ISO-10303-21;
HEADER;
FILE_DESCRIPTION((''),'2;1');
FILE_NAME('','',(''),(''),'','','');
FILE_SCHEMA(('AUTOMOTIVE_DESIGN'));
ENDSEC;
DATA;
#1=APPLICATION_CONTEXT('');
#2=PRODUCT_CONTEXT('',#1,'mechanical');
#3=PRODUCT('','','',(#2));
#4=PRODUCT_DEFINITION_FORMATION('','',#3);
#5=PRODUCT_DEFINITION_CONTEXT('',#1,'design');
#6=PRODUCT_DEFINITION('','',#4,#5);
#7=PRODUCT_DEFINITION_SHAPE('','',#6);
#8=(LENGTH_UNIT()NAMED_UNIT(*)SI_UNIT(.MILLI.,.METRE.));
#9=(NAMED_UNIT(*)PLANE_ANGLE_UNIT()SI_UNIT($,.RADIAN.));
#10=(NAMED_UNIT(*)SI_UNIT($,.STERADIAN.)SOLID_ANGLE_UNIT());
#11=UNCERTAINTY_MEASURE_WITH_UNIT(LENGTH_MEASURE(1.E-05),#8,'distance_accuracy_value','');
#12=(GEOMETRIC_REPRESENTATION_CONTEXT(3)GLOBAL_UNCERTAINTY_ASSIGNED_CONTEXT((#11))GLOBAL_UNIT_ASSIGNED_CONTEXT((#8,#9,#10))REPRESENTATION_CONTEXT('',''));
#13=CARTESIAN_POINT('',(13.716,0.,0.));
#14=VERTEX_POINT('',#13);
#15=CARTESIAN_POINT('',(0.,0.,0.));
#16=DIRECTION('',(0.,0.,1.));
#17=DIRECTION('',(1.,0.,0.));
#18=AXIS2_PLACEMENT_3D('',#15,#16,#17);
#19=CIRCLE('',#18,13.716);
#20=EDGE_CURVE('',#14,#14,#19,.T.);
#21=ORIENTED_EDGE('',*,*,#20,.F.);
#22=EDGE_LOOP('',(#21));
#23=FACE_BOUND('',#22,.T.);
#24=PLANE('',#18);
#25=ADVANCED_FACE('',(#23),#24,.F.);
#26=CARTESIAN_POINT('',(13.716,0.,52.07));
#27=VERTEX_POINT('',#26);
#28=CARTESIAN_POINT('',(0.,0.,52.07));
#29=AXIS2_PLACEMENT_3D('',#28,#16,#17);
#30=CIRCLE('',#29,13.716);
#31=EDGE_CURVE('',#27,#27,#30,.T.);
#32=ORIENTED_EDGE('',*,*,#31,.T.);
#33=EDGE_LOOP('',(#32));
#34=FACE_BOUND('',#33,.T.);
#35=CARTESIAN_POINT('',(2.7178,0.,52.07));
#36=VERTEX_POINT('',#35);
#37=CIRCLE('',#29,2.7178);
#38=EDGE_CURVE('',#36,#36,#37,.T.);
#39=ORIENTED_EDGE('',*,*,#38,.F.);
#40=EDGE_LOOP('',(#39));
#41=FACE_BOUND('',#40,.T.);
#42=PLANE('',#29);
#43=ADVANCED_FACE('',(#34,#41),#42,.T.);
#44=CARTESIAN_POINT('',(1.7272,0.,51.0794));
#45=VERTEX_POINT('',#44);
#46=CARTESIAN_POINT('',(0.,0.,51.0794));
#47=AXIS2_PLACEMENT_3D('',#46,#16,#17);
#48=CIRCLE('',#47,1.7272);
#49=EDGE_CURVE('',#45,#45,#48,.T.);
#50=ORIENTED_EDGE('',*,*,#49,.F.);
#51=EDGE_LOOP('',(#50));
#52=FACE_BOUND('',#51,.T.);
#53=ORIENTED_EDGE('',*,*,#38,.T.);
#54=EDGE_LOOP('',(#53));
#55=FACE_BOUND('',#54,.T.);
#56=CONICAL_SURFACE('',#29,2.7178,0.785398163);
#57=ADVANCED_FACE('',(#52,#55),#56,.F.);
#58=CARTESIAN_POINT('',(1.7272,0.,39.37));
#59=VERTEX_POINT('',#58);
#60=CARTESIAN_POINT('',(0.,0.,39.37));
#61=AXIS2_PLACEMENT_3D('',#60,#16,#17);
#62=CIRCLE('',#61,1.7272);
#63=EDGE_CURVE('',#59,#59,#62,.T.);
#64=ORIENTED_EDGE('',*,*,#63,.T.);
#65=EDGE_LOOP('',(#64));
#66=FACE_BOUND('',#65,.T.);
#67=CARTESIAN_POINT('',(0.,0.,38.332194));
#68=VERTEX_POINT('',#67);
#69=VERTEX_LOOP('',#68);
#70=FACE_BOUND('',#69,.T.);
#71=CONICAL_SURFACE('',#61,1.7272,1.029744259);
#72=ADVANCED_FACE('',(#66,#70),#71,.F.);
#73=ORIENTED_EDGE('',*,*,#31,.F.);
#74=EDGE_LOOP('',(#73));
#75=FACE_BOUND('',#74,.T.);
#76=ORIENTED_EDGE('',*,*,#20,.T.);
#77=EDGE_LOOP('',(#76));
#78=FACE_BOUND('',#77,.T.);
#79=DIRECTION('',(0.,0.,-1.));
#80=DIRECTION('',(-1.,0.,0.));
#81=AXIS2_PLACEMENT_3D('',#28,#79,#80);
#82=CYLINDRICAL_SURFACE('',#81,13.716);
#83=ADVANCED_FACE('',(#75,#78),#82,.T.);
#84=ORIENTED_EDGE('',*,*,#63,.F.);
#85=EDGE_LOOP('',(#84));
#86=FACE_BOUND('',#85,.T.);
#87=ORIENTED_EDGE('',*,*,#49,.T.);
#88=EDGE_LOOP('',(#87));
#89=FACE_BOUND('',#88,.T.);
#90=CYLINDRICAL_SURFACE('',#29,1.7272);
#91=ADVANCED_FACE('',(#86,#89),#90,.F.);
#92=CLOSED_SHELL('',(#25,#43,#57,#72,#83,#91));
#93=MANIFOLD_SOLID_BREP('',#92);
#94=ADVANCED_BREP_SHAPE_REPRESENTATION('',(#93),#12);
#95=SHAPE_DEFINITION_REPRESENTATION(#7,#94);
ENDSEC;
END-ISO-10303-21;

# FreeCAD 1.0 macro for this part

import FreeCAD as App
import Part
import Sketcher

V = App.Vector
Q = App.Units.Quantity

doc = App.newDocument("Part")
params = doc.addObject("Spreadsheet::Sheet", "Params")
for row, (alias, value) in enumerate([
    ("sketch1_diameter", "1.08 in"),
    ("pad1_length", "2.05 in"),
    ("sketch2_diameter", "0.136 in"),
    ("hole_diameter", "0.136 in"),
    ("hole_depth", "0.5 in"),
    ("hole_csink_diameter", "0.214 in"),
], start=1):
    params.set(f"A{row}", alias)
    params.set(f"B{row}", "=" + value)
    params.setAlias(f"B{row}", alias)

body = doc.addObject("PartDesign::Body", "Body")

sketch1 = doc.addObject("Sketcher::SketchObject", "Sketch")
body.addObject(sketch1)
sketch1.AttachmentSupport = (doc.XY_Plane, [""])
sketch1.MapMode = "FlatFace"
sketch1.addGeometry(Part.Circle(V(0, 0, 0), V(0, 0, 1), 13.716), False)
sketch1.addConstraint([
    Sketcher.Constraint("Coincident", 0, 3, -1, 1),
    Sketcher.Constraint("Diameter", 0, Q("1.08 in")),
])
sketch1.setExpression("Constraints[1]", "Params.sketch1_diameter")
pad1 = doc.addObject("PartDesign::Pad", "Pad")
body.addObject(pad1)
pad1.Profile = sketch1
pad1.setExpression("Length", "Params.pad1_length")

sketch2 = doc.addObject("Sketcher::SketchObject", "Sketch001")
body.addObject(sketch2)
sketch2.AttachmentSupport = (doc.XY_Plane, [""])
sketch2.MapMode = "FlatFace"
sketch2.AttachmentOffset = App.Placement(V(0, 0, 2.05 * 25.4), App.Rotation())
sketch2.addGeometry(Part.Circle(V(0, 0, 0), V(0, 0, 1), 1.7272), False)
sketch2.addConstraint([
    Sketcher.Constraint("Coincident", 0, 3, -1, 1),
    Sketcher.Constraint("Diameter", 0, Q("0.136 in")),
])
sketch2.setExpression("Constraints[1]", "Params.sketch2_diameter")
doc.recompute()
hole = doc.addObject("PartDesign::Hole", "Hole")
body.addObject(hole)
hole.Profile = sketch2
hole.ThreadType = "None"
hole.setExpression("Diameter", "Params.hole_diameter")
hole.DepthType = "Dimension"
hole.setExpression("Depth", "Params.hole_depth")
hole.DrillPoint = "Angled"
hole.DrillPointAngle = 118
hole.HoleCutType = "Countersink"
hole.setExpression("HoleCutDiameter", "Params.hole_csink_diameter")
hole.HoleCutCountersinkAngle = 90

doc.recompute()
